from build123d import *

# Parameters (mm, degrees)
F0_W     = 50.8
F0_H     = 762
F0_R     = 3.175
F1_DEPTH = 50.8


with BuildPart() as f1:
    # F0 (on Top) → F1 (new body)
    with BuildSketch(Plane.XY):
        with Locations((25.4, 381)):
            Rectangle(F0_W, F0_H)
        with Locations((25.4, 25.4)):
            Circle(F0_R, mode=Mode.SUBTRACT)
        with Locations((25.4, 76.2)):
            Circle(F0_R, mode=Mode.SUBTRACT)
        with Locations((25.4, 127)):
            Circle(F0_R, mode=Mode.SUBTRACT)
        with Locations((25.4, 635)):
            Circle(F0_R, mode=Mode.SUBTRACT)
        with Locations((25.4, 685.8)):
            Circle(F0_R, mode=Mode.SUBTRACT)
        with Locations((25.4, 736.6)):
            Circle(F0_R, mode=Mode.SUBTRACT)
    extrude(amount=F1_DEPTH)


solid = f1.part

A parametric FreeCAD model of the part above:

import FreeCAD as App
import Part
import Sketcher

V = App.Vector
Q = App.Units.Quantity

doc = App.newDocument("Part")
params = doc.addObject("Spreadsheet::Sheet", "Params")
for row, (alias, value) in enumerate([
    ("sketch1_diameter", "0.25 in"),
    ("sketch1_width", "2 in"),
    ("sketch1_height", "30 in"),
    ("pad1_length", "2 in"),
], start=1):
    params.set(f"A{row}", alias)
    params.set(f"B{row}", "=" + value)
    params.setAlias(f"B{row}", alias)

body = doc.addObject("PartDesign::Body", "Body")

# Sketch on XY plane
sketch1 = doc.addObject("Sketcher::SketchObject", "Sketch")
body.addObject(sketch1)
sketch1.AttachmentSupport = (doc.XY_Plane, [""])
sketch1.MapMode = "FlatFace"
sketch1.addGeometry([
    Part.LineSegment(V(0, 762, 0), V(0, 0, 0)),  # 0
    Part.LineSegment(V(0, 0, 0), V(50.8, 0, 0)),  # 1
    Part.LineSegment(V(50.8, 0, 0), V(50.8, 762, 0)),  # 2
    Part.LineSegment(V(50.8, 762, 0), V(0, 762, 0)),  # 3
    Part.Circle(V(25.4, 25.4, 0), V(0, 0, 1), 3.2),  # 4
    Part.Circle(V(25.4, 76.2, 0), V(0, 0, 1), 3.2),  # 5
    Part.Circle(V(25.4, 127, 0), V(0, 0, 1), 3.2),  # 6
    Part.Circle(V(25.4, 635, 0), V(0, 0, 1), 3.2),  # 7
    Part.Circle(V(25.4, 685.8, 0), V(0, 0, 1), 3.2),  # 8
    Part.Circle(V(25.4, 736.6, 0), V(0, 0, 1), 3.2),  # 9
], False)
sketch1.addConstraint([
    Sketcher.Constraint("Coincident", 0, 2, 1, 1),
    Sketcher.Constraint("Coincident", 1, 2, 2, 1),
    Sketcher.Constraint("Coincident", 2, 2, 3, 1),
    Sketcher.Constraint("Coincident", 3, 2, 0, 1),
    Sketcher.Constraint("Vertical", 0),
    Sketcher.Constraint("Horizontal", 1),
    Sketcher.Constraint("Vertical", 2),
    Sketcher.Constraint("Horizontal", 3),
    Sketcher.Constraint("Coincident", 0, 2, -1, 1),
    Sketcher.Constraint("Equal", 4, 5),
    Sketcher.Constraint("Equal", 5, 6),
    Sketcher.Constraint("Equal", 6, 7),
    Sketcher.Constraint("Equal", 7, 8),
    Sketcher.Constraint("Equal", 8, 9),
    Sketcher.Constraint("Vertical", 4, 3, 5, 3),
    Sketcher.Constraint("Vertical", 5, 3, 6, 3),
    Sketcher.Constraint("Vertical", 6, 3, 7, 3),
    Sketcher.Constraint("Vertical", 7, 3, 8, 3),
    Sketcher.Constraint("Vertical", 8, 3, 9, 3),
    Sketcher.Constraint("Diameter", 4, Q("0.25 in")),
    Sketcher.Constraint("DistanceX", 1, 1, 1, 2, Q("2 in")),
    Sketcher.Constraint("DistanceY", 0, 2, 0, 1, Q("30 in")),
    Sketcher.Constraint("DistanceX", -1, 1, 4, 3, Q("1 in")),
    Sketcher.Constraint("DistanceY", -1, 1, 4, 3, Q("1 in")),
    Sketcher.Constraint("DistanceY", -1, 1, 5, 3, Q("3 in")),
    Sketcher.Constraint("DistanceY", -1, 1, 6, 3, Q("5 in")),
    Sketcher.Constraint("DistanceY", -1, 1, 7, 3, Q("25 in")),
    Sketcher.Constraint("DistanceY", -1, 1, 8, 3, Q("27 in")),
    Sketcher.Constraint("DistanceY", -1, 1, 9, 3, Q("29 in")),
])
sketch1.setExpression("Constraints[19]", "Params.sketch1_diameter")
sketch1.setExpression("Constraints[20]", "Params.sketch1_width")
sketch1.setExpression("Constraints[21]", "Params.sketch1_height")
pad1 = doc.addObject("PartDesign::Pad", "Pad")
body.addObject(pad1)
pad1.Profile = sketch1
pad1.setExpression("Length", "Params.pad1_length")

doc.recompute()
